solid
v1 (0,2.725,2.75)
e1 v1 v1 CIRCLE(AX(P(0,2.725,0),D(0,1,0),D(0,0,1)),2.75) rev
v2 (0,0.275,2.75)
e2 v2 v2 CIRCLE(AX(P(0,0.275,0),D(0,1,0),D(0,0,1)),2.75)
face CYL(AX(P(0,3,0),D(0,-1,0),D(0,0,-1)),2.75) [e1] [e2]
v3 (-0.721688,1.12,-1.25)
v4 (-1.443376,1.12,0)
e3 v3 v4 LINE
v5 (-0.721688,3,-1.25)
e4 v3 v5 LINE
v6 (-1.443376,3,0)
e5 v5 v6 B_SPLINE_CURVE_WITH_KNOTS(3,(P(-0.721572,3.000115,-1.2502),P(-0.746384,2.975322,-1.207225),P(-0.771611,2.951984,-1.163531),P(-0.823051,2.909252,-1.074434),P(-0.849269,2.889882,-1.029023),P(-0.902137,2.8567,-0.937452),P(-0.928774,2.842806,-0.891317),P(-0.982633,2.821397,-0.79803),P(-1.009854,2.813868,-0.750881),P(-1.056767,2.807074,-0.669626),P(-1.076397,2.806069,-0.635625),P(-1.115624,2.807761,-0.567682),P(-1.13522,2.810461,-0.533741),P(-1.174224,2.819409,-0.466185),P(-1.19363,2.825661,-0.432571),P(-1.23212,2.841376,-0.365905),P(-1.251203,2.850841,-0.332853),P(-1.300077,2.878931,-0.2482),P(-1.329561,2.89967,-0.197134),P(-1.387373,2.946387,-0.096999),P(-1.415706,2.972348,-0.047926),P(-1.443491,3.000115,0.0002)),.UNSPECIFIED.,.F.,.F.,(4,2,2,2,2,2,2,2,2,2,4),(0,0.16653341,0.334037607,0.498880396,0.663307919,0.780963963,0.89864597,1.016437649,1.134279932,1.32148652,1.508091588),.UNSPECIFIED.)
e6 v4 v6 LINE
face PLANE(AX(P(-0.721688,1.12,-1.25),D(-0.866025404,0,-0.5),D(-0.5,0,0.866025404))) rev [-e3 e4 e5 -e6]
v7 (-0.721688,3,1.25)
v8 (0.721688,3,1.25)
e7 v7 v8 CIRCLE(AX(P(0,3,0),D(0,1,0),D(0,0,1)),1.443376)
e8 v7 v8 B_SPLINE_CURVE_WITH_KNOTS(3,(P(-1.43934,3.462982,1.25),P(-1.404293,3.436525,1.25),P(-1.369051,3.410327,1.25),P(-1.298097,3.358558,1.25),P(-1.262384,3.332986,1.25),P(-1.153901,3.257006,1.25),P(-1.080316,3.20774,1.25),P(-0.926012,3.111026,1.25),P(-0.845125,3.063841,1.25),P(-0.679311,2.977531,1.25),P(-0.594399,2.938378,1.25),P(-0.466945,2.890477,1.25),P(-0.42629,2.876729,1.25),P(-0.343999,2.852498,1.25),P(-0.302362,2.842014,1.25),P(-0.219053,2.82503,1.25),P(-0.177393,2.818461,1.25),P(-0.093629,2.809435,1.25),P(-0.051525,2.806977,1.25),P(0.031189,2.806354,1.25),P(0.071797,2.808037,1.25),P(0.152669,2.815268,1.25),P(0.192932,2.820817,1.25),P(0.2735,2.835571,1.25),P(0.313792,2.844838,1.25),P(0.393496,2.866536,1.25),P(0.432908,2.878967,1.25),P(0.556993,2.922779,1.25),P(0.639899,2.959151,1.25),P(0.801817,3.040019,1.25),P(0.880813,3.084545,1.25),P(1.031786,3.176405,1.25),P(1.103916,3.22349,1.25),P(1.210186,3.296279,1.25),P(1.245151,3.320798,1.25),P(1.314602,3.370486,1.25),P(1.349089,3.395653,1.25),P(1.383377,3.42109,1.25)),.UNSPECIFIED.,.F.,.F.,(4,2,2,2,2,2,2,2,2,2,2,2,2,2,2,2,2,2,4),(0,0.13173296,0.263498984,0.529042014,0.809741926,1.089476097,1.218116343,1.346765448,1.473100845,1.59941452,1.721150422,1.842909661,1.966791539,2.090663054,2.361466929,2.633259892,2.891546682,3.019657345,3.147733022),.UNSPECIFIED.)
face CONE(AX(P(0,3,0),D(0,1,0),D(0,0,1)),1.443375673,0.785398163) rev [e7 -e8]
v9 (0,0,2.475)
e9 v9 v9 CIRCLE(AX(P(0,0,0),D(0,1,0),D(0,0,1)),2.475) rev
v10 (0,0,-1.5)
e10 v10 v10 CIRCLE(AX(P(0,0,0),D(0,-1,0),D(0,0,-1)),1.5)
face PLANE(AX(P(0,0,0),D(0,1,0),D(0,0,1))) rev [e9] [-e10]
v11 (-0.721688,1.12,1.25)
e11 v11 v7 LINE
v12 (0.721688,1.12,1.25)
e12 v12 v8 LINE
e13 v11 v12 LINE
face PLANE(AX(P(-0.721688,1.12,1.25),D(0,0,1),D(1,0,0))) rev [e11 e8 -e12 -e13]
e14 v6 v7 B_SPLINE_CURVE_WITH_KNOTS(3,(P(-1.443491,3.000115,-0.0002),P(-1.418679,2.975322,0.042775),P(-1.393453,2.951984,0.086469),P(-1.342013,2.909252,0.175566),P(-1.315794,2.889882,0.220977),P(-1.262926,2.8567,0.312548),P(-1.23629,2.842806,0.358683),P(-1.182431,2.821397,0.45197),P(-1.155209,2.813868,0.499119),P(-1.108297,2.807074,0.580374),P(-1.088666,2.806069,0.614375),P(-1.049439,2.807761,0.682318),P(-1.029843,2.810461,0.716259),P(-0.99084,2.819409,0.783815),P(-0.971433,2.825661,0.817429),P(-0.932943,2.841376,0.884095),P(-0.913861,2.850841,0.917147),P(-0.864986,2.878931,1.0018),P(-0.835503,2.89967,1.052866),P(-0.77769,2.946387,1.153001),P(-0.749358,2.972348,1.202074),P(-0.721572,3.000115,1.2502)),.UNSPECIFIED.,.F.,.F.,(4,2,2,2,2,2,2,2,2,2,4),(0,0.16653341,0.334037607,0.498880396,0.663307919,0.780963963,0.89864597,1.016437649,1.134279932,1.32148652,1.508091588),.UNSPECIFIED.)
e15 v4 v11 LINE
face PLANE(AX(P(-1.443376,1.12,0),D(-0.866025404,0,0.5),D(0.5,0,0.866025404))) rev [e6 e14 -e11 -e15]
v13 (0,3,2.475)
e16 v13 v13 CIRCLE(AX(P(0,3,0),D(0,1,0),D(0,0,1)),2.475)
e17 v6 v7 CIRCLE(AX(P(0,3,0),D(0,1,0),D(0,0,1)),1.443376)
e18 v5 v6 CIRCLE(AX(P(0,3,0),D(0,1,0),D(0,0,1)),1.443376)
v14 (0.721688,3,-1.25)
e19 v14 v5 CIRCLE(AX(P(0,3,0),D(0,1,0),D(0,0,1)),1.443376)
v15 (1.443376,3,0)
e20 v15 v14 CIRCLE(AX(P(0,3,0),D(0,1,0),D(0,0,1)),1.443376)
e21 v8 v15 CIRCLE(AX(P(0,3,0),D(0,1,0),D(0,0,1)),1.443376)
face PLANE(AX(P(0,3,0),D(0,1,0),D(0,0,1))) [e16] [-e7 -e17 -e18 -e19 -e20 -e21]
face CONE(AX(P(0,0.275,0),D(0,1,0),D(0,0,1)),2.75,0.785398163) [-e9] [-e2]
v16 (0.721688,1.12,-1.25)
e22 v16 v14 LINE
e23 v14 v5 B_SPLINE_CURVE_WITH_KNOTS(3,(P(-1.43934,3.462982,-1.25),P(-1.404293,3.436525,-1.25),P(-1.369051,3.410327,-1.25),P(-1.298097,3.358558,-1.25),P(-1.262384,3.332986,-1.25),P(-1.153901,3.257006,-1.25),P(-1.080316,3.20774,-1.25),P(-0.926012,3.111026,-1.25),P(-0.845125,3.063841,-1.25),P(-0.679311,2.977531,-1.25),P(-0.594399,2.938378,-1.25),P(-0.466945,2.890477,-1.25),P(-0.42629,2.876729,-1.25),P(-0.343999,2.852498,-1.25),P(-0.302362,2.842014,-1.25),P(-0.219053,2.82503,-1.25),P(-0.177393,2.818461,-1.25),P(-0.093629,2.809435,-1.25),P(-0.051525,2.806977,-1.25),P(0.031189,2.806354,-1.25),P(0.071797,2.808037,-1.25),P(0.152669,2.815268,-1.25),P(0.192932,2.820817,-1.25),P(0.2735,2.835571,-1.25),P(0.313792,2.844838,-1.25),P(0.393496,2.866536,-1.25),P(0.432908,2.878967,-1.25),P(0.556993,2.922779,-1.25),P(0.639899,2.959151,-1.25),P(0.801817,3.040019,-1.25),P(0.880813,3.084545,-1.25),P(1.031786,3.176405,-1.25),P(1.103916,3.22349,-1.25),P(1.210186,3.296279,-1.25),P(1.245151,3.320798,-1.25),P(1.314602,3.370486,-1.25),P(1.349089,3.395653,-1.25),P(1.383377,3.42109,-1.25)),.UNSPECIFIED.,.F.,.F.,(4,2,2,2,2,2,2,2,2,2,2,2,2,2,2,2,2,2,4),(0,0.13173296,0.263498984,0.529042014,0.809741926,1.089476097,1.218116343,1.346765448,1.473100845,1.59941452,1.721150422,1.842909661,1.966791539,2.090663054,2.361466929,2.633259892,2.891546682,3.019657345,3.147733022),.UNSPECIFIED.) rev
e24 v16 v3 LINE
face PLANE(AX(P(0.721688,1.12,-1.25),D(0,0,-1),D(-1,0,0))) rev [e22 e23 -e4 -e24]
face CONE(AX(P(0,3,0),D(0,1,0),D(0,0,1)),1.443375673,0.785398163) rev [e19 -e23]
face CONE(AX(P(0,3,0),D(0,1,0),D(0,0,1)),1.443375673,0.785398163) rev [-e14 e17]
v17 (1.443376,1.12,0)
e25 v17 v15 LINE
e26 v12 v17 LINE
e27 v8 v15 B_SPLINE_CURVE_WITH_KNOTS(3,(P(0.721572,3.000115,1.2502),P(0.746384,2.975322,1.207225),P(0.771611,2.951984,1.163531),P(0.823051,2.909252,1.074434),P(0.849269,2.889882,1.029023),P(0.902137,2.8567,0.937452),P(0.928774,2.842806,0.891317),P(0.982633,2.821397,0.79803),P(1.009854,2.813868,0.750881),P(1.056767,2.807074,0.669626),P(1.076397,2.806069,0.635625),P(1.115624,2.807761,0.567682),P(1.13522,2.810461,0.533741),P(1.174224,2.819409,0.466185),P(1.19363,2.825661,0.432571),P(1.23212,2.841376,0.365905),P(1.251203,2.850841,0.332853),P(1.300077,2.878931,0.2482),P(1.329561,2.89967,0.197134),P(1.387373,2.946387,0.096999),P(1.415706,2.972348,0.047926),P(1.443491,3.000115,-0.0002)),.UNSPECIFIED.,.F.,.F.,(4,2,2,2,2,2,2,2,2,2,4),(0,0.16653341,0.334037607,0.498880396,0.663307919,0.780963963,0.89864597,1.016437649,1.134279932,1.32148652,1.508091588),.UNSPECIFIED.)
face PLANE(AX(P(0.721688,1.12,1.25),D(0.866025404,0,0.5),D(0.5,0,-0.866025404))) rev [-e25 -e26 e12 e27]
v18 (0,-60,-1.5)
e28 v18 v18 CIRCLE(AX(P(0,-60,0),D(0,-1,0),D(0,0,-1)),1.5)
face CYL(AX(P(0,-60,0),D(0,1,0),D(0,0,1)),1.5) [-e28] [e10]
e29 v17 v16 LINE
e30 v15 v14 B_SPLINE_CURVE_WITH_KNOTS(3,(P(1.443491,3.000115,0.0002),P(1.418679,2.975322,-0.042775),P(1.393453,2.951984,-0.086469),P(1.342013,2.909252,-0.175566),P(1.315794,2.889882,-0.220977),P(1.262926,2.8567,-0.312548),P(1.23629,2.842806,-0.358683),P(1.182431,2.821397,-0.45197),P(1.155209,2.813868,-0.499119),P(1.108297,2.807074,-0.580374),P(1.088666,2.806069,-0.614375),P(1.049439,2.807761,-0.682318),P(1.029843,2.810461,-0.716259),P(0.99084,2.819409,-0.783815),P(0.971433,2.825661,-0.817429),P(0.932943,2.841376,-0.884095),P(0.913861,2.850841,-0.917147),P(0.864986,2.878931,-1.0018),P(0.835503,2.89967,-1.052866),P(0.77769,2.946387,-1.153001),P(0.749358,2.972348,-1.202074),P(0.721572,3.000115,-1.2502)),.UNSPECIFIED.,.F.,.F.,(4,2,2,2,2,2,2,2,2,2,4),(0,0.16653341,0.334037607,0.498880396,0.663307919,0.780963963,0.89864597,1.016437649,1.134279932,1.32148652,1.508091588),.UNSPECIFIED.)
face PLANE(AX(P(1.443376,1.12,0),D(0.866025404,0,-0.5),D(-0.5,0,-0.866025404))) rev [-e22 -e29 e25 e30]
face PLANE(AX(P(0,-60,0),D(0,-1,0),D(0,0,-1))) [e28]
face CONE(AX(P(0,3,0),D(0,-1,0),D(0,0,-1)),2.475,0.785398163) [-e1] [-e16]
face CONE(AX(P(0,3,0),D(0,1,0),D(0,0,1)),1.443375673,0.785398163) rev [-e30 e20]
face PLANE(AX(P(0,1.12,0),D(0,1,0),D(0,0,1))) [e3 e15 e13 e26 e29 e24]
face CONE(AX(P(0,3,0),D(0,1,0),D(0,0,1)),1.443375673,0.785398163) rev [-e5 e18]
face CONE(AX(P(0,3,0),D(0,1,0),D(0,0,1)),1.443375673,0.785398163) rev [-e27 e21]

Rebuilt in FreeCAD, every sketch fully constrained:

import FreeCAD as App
import Part
import Sketcher
Q = App.Units.Quantity


def edges_at(feature, points):
    """Names of the edges that pass closest to the given points."""
    edges = feature.Shape.Edges
    near = lambda p: min(range(len(edges)), key=lambda i: edges[i].distToShape(Part.Vertex(*p))[0])
    return sorted({f"Edge{near(p) + 1}" for p in points})


def add_polygon(sketch, points):
    """Adds a closed chain of lines whose ends are joined by coincident constraints."""
    first, n = sketch.GeometryCount, len(points)
    for a, b in zip(points, points[1:] + points[:1]):
        sketch.addGeometry(Part.LineSegment(App.Vector(*a, 0), App.Vector(*b, 0)), False)
    for i in range(n):
        sketch.addConstraint(Sketcher.Constraint("Coincident", first + i, 2, first + (i + 1) % n, 1))

doc = App.newDocument("Part")
body = doc.addObject("PartDesign::Body", "Body")

# Sketch on XZ plane
sketch1 = body.newObject("Sketcher::SketchObject", "Sketch")
sketch1.AttachmentSupport = (doc.getObject("XZ_Plane"), [""])
sketch1.MapMode = "FlatFace"
sketch1.addGeometry(Part.Circle(App.Vector(0, 0, 0), App.Vector(0, 0, 1), 2.8), False)
sketch1.addConstraint(Sketcher.Constraint("Coincident", 0, 3, -1, 1))
sketch1.addConstraint(Sketcher.Constraint("Diameter", 0, 5.5))
pad1 = body.newObject("PartDesign::Pad", "Pad")
pad1.Profile = sketch1
pad1.Length = 3
pad1.Reversed = True

# Sketch on XZ plane
sketch2 = body.newObject("Sketcher::SketchObject", "Sketch001")
sketch2.AttachmentSupport = (doc.getObject("XZ_Plane"), [""])
sketch2.MapMode = "FlatFace"
sketch2.AttachmentOffset = App.Placement(App.Vector(0, 0, -3), App.Rotation())
add_polygon(sketch2, [(0.7, -1.2), (-0.7, -1.2), (-1.4, 0), (-0.7, 1.2), (0.7, 1.2), (1.4, 0)])  # lines 0-5
sketch2.addConstraint(Sketcher.Constraint("Horizontal", 0))
sketch2.addConstraint(Sketcher.Constraint("Horizontal", 3))
sketch2.addConstraint(Sketcher.Constraint("Symmetric", 0, 2, 3, 2, -1, 1))
sketch2.addConstraint(Sketcher.Constraint("Symmetric", 1, 2, 4, 2, -1, 1))
sketch2.addConstraint(Sketcher.Constraint("PointOnObject", 1, 2, -1))
sketch2.addConstraint(Sketcher.Constraint("Parallel", 2, 5))
sketch2.addConstraint(Sketcher.Constraint("Vertical", 0, 2, 2, 2))
sketch2.addConstraint(Sketcher.Constraint("Angle", 1, Q("120 deg")))
sketch2.addConstraint(Sketcher.Constraint("DistanceY", 0, 2, 2, 2, 2.5))
sketch2.addConstraint(Sketcher.Constraint("DistanceX", 0, 2, 0, 1, 1.443376))
pocket1 = body.newObject("PartDesign::Pocket", "Pocket")
pocket1.Profile = sketch2
pocket1.Length = 1.88
pocket1.Reversed = True

# Sketch on YZ plane
sketch3 = body.newObject("Sketcher::SketchObject", "Sketch002")
sketch3.AttachmentSupport = (doc.getObject("YZ_Plane"), [""])
sketch3.MapMode = "FlatFace"
add_polygon(sketch3, [(3, 0), (3, 1.4), (1.6, 0)])  # lines 0-2
sketch3.addConstraint(Sketcher.Constraint("Vertical", 0))
sketch3.addConstraint(Sketcher.Constraint("Horizontal", 2))
sketch3.addConstraint(Sketcher.Constraint("PointOnObject", 1, 2, -1))
sketch3.addConstraint(Sketcher.Constraint("Equal", 2, 0))
sketch3.addConstraint(Sketcher.Constraint("DistanceX", -1, 1, 0, 2, 3.0))
sketch3.addConstraint(Sketcher.Constraint("Distance", 1, 2.041241))
groove = body.newObject("PartDesign::Groove", "Groove")
groove.Profile = sketch3
groove.ReferenceAxis = (sketch3, ["H_Axis"])
groove.Angle = 360
doc.recompute()

chamfer = body.newObject("PartDesign::Chamfer", "Chamfer")
chamfer.Base = (groove, edges_at(groove, [(0, 0, -2.75), (0, 3, -2.75)]))
chamfer.Size = 0.275

# Sketch on XZ plane
sketch4 = body.newObject("Sketcher::SketchObject", "Sketch003")
sketch4.AttachmentSupport = (doc.getObject("XZ_Plane"), [""])
sketch4.MapMode = "FlatFace"
sketch4.addGeometry(Part.Circle(App.Vector(0, 0, 0), App.Vector(0, 0, 1), 1.5), False)
sketch4.addConstraint(Sketcher.Constraint("Coincident", 0, 3, -1, 1))
sketch4.addConstraint(Sketcher.Constraint("Diameter", 0, 3.0))
pad2 = body.newObject("PartDesign::Pad", "Pad001")
pad2.Profile = sketch4
pad2.Length = 60

doc.recompute()
